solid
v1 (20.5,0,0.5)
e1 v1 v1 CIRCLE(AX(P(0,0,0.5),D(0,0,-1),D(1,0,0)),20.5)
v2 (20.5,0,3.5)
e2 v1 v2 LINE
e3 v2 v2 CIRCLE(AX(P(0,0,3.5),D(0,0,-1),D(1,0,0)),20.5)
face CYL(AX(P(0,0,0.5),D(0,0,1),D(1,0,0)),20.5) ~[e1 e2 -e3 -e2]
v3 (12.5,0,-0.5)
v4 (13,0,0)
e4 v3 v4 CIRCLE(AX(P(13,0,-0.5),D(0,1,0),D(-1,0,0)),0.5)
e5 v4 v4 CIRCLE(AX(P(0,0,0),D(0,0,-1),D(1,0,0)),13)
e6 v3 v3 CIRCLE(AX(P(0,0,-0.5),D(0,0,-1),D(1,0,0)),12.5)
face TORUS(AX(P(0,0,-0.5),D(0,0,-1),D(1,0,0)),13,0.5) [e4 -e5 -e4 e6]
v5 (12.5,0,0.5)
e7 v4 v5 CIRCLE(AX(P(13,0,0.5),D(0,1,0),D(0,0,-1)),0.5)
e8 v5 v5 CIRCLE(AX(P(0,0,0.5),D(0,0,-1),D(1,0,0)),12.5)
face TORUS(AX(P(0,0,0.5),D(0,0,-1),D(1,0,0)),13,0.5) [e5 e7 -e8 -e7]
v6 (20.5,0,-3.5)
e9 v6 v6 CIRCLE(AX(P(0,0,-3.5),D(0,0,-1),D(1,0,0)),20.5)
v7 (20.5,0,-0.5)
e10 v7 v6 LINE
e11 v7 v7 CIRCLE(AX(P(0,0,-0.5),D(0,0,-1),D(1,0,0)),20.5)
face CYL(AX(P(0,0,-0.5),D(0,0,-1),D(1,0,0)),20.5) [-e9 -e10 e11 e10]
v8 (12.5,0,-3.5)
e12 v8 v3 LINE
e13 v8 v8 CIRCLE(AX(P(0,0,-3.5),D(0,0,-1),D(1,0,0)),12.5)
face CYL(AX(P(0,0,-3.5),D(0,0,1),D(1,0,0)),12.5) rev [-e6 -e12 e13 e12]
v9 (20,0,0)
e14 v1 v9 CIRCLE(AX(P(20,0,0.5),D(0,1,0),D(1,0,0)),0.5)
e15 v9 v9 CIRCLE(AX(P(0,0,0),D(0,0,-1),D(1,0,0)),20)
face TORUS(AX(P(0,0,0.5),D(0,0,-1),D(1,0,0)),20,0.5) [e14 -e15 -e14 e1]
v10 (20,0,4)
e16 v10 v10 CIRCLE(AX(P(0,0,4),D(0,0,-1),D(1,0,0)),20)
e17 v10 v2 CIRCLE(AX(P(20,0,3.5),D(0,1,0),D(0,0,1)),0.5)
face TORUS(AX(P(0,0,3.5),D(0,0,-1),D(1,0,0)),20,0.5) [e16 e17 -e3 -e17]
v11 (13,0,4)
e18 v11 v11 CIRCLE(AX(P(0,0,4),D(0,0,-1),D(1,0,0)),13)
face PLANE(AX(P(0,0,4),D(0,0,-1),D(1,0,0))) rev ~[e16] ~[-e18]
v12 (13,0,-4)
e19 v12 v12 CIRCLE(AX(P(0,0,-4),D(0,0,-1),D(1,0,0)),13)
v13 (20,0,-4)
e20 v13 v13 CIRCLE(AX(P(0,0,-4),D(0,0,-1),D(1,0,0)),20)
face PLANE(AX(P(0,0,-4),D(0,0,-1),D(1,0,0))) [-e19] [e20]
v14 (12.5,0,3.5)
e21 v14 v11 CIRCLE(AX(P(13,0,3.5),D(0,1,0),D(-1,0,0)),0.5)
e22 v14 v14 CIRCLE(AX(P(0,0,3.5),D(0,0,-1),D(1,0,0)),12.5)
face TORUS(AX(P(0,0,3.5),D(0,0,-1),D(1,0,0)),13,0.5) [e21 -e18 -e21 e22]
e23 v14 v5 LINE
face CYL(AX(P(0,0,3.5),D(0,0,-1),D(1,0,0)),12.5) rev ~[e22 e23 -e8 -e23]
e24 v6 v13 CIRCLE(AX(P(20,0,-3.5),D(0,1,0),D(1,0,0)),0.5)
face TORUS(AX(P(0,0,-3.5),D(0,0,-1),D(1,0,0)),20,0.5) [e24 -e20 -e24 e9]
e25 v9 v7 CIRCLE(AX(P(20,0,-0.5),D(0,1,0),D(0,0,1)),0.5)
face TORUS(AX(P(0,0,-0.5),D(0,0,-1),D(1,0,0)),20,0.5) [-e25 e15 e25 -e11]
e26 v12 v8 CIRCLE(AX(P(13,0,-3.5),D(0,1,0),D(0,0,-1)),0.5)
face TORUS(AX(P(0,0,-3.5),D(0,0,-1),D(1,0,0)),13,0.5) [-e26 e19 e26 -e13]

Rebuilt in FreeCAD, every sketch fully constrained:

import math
import FreeCAD as App
import Part
import Sketcher

V = App.Vector
Q = App.Units.Quantity

doc = App.newDocument("Part")
body = doc.addObject("PartDesign::Body", "Body")

# Sketch on XZ plane
sketch1 = body.newObject("Sketcher::SketchObject", "Sketch")
sketch1.AttachmentSupport = (doc.getObject("XZ_Plane"), [""])
sketch1.MapMode = "FlatFace"
sketch1.addGeometry([
    Part.ArcOfCircle(Part.Circle(V(13, -0.5, 0), V(0, 0, 1), 0.5), math.radians(90), math.radians(180)),  # 0
    Part.ArcOfCircle(Part.Circle(V(13, 0.5, 0), V(0, 0, 1), 0.5), math.radians(180), math.radians(270)),  # 1
    Part.LineSegment(V(12.5, 0.5, 0), V(12.5, 3.5, 0)),  # 2
    Part.ArcOfCircle(Part.Circle(V(13, 3.5, 0), V(0, 0, 1), 0.5), math.radians(90), math.radians(180)),  # 3
    Part.LineSegment(V(13, 4, 0), V(20, 4, 0)),  # 4
    Part.ArcOfCircle(Part.Circle(V(20, 3.5, 0), V(0, 0, 1), 0.5), math.radians(0), math.radians(90)),  # 5
    Part.LineSegment(V(20.5, 3.5, 0), V(20.5, 0.5, 0)),  # 6
    Part.ArcOfCircle(Part.Circle(V(20, 0.5, 0), V(0, 0, 1), 0.5), math.radians(-90), math.radians(0)),  # 7
    Part.ArcOfCircle(Part.Circle(V(20, -0.5, 0), V(0, 0, 1), 0.5), math.radians(0), math.radians(90)),  # 8
    Part.LineSegment(V(20.5, -0.5, 0), V(20.5, -3.5, 0)),  # 9
    Part.ArcOfCircle(Part.Circle(V(20, -3.5, 0), V(0, 0, 1), 0.5), math.radians(-90), math.radians(0)),  # 10
    Part.LineSegment(V(20, -4, 0), V(13, -4, 0)),  # 11
    Part.ArcOfCircle(Part.Circle(V(13, -3.5, 0), V(0, 0, 1), 0.5), math.radians(180), math.radians(270)),  # 12
    Part.LineSegment(V(12.5, -3.5, 0), V(12.5, -0.5, 0)),  # 13
], False)
sketch1.addConstraint([
    Sketcher.Constraint("Tangent", 0, 1, 1, 2),
    Sketcher.Constraint("Tangent", 1, 1, 2, 1),
    Sketcher.Constraint("Tangent", 2, 2, 3, 2),
    Sketcher.Constraint("Tangent", 3, 1, 4, 1),
    Sketcher.Constraint("Tangent", 4, 2, 5, 2),
    Sketcher.Constraint("Tangent", 5, 1, 6, 1),
    Sketcher.Constraint("Tangent", 6, 2, 7, 2),
    Sketcher.Constraint("Tangent", 7, 1, 8, 2),
    Sketcher.Constraint("Tangent", 8, 1, 9, 1),
    Sketcher.Constraint("Tangent", 9, 2, 10, 2),
    Sketcher.Constraint("Tangent", 10, 1, 11, 1),
    Sketcher.Constraint("Tangent", 11, 2, 12, 2),
    Sketcher.Constraint("Tangent", 12, 1, 13, 1),
    Sketcher.Constraint("Tangent", 13, 2, 0, 2),
    Sketcher.Constraint("Vertical", 2),
    Sketcher.Constraint("Horizontal", 4),
    Sketcher.Constraint("Vertical", 6),
    Sketcher.Constraint("Vertical", 9),
    Sketcher.Constraint("Horizontal", 11),
    Sketcher.Constraint("Vertical", 13),
    Sketcher.Constraint("Equal", 0, 1),
    Sketcher.Constraint("Equal", 1, 3),
    Sketcher.Constraint("Equal", 3, 5),
    Sketcher.Constraint("Equal", 5, 7),
    Sketcher.Constraint("Equal", 7, 8),
    Sketcher.Constraint("Equal", 8, 10),
    Sketcher.Constraint("Equal", 10, 12),
    Sketcher.Constraint("Symmetric", 0, 3, 1, 3, -1),
    Sketcher.Constraint("Symmetric", 7, 3, 8, 3, -1),
    Sketcher.Constraint("Equal", 6, 9),
    Sketcher.Constraint("Radius", 0, Q("0.5 mm")),
    Sketcher.Constraint("DistanceX", 4, 1, 4, 2, Q("7 mm")),
    Sketcher.Constraint("DistanceY", 2, 1, 2, 2, Q("3 mm")),
    Sketcher.Constraint("DistanceX", -1, 1, 0, 3, Q("13 mm")),
])
revolution = body.newObject("PartDesign::Revolution", "Revolution")
revolution.Profile = sketch1
revolution.ReferenceAxis = (sketch1, ["V_Axis"])
revolution.Angle = 360

doc.recompute()
